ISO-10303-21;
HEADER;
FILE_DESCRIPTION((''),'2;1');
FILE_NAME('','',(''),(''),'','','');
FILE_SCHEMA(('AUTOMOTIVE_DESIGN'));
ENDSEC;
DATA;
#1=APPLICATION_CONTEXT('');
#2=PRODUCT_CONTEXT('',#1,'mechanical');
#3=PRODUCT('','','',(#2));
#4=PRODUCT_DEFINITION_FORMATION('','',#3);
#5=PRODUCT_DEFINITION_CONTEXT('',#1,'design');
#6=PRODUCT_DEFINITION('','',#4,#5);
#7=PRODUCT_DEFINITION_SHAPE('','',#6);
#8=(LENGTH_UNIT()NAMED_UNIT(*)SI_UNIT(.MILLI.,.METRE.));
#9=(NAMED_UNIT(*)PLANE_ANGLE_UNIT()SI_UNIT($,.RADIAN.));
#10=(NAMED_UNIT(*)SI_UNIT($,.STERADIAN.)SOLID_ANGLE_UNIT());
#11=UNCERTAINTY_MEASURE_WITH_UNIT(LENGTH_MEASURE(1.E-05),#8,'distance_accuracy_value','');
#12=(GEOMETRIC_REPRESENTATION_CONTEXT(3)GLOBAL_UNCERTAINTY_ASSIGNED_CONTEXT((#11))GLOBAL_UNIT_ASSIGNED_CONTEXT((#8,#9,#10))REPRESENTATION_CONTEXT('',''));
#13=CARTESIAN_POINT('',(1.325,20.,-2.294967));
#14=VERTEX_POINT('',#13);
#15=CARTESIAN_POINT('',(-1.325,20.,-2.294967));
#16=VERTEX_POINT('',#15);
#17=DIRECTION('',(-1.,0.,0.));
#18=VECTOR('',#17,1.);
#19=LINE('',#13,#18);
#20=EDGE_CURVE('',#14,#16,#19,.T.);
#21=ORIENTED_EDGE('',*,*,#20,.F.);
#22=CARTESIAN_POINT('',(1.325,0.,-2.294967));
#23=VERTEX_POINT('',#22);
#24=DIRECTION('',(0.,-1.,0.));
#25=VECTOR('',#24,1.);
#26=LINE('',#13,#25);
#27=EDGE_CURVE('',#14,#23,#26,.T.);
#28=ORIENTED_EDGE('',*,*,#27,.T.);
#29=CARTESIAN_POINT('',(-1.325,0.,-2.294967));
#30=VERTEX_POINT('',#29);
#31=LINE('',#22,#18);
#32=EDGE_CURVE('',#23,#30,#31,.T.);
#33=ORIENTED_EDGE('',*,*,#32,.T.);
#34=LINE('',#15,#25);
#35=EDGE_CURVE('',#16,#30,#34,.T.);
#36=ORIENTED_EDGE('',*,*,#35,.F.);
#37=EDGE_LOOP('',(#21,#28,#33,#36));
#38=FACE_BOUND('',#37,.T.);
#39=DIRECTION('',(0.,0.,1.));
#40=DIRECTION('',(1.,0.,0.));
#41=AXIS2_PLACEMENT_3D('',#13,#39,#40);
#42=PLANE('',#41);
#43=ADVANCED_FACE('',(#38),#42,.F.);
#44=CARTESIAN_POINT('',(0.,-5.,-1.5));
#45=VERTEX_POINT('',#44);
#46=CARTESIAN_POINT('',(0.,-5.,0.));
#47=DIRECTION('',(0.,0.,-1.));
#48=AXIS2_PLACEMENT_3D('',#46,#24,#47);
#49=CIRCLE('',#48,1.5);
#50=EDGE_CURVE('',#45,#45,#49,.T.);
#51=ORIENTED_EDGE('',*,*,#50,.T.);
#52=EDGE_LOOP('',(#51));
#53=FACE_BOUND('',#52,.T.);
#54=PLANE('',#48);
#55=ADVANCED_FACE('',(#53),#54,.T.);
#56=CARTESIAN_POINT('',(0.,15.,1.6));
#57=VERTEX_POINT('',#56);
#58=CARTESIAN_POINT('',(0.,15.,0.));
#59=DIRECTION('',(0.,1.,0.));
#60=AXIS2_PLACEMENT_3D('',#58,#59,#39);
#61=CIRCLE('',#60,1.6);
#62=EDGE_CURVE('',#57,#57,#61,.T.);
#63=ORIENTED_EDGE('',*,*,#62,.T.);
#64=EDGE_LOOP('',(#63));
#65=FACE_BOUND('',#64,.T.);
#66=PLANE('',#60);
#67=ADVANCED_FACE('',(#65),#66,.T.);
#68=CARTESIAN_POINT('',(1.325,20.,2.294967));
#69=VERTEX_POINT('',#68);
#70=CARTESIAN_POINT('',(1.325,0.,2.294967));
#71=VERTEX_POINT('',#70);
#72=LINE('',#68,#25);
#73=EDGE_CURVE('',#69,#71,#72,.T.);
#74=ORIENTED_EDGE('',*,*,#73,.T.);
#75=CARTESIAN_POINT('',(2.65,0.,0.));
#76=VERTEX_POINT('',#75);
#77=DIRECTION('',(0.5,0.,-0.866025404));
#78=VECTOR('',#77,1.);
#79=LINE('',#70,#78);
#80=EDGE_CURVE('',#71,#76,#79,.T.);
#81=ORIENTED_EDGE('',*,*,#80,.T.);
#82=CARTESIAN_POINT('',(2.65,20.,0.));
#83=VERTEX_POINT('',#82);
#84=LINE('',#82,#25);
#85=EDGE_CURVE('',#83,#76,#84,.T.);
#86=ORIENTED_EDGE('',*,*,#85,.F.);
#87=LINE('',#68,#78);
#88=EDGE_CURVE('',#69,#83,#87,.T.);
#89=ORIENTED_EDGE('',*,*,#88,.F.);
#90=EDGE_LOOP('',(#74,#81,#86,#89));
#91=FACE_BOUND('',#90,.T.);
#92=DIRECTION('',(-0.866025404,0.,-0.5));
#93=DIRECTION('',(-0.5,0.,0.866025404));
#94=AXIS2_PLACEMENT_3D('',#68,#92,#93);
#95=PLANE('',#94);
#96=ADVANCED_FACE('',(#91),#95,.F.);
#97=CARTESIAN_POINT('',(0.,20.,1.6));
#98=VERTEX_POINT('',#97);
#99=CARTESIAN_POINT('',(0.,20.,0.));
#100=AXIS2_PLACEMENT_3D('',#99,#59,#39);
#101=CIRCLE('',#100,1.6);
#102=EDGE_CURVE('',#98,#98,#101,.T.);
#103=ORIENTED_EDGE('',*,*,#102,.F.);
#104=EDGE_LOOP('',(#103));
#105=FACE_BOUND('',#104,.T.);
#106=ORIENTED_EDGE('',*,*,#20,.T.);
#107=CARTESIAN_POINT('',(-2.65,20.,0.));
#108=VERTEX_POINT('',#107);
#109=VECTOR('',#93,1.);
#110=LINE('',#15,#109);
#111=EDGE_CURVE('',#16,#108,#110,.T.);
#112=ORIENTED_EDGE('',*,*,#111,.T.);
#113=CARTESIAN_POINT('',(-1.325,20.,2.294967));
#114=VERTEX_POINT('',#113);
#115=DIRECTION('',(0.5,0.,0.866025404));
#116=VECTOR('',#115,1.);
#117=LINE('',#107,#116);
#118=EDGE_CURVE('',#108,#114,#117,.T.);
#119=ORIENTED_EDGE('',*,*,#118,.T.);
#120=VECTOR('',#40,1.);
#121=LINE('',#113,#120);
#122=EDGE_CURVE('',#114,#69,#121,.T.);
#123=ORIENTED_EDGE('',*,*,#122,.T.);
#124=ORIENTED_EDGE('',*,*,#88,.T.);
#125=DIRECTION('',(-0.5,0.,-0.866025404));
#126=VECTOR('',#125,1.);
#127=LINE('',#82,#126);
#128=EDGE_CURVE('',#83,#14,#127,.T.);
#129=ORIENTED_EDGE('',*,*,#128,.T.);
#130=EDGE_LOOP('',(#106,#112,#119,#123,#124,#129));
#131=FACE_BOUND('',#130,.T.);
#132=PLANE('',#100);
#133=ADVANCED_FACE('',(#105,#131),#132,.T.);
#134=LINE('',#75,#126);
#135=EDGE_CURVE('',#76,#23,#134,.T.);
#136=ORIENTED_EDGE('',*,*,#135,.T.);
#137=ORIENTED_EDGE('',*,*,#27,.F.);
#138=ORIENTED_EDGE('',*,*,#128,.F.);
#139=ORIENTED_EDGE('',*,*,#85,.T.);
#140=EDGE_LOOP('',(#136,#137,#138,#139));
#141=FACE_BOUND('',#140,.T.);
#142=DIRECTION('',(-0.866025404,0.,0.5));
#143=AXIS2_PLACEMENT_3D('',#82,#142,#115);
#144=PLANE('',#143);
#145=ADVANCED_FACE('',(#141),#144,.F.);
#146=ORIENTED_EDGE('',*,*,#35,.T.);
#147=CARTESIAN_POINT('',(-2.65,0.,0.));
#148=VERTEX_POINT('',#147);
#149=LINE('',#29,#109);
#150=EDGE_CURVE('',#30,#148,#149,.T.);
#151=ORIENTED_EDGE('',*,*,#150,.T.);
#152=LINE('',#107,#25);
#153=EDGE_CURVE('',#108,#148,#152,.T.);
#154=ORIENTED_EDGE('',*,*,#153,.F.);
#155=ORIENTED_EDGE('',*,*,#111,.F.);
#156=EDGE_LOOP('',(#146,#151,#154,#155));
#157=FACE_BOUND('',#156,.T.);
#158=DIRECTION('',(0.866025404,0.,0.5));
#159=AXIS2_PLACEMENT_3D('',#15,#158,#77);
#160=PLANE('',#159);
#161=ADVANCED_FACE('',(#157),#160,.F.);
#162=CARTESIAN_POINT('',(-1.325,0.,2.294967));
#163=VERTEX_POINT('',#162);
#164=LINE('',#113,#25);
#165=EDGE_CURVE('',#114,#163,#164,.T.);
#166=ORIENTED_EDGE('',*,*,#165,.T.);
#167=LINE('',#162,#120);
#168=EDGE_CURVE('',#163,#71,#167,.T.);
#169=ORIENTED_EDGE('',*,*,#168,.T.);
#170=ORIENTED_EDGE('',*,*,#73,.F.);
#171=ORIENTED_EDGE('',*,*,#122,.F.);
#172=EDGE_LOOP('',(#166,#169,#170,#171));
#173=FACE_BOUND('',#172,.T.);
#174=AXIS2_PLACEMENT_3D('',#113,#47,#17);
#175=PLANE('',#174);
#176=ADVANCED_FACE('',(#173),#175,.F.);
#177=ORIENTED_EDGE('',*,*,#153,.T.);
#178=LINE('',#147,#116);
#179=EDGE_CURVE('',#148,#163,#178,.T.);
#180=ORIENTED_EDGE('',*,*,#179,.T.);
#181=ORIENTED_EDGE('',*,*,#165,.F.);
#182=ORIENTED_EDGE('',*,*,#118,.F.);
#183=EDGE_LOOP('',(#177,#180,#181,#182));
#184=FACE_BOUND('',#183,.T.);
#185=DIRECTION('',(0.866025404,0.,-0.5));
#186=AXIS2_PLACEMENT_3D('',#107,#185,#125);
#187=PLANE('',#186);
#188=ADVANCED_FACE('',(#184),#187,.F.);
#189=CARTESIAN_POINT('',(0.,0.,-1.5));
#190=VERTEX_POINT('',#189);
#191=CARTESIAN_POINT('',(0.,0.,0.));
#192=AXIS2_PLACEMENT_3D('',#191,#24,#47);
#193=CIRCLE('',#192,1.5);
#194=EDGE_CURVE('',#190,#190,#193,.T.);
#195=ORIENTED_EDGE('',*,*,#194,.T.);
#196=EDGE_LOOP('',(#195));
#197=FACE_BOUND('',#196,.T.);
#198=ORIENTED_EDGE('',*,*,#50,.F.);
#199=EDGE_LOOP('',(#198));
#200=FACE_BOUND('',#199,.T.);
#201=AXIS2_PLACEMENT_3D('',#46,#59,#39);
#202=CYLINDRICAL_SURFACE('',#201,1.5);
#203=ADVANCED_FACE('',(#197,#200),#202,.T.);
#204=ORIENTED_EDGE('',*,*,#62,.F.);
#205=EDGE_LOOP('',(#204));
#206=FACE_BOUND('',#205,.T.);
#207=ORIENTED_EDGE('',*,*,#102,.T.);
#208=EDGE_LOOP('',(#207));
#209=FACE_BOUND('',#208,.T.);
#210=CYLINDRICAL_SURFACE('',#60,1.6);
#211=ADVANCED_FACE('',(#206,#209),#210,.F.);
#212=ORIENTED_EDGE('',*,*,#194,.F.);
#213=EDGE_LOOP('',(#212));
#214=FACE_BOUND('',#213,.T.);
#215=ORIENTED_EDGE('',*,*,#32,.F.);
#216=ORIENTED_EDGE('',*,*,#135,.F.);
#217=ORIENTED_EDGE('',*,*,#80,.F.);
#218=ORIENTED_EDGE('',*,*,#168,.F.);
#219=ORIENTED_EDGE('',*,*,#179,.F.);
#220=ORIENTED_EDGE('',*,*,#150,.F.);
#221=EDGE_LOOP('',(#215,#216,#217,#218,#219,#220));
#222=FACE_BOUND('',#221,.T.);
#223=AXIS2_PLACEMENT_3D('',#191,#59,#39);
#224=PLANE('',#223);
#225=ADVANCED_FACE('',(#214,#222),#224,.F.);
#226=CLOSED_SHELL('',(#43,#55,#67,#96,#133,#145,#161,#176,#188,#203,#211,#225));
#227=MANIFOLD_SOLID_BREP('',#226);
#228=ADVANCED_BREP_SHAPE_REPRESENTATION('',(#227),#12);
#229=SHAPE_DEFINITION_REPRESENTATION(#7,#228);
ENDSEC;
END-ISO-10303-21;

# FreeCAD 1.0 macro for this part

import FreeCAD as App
import Part
import Sketcher
from FreeCAD import Vector
Q = App.Units.Quantity

doc = App.newDocument("Part")
body = doc.addObject("PartDesign::Body", "Body")

# Sketch on XZ plane
sketch1 = body.newObject("Sketcher::SketchObject", "Sketch")
sketch1.AttachmentSupport = (doc.getObject("XZ_Plane"), [""])
sketch1.MapMode = "FlatFace"
sketch1.addGeometry(Part.LineSegment(Vector(2.6, 0, 0), Vector(1.3, -2.3, 0)), False)
sketch1.addGeometry(Part.LineSegment(Vector(1.3, -2.3, 0), Vector(-1.3, -2.3, 0)), False)
sketch1.addGeometry(Part.LineSegment(Vector(-1.3, -2.3, 0), Vector(-2.6, 0, 0)), False)
sketch1.addGeometry(Part.LineSegment(Vector(-2.6, 0, 0), Vector(-1.3, 2.3, 0)), False)
sketch1.addGeometry(Part.LineSegment(Vector(-1.3, 2.3, 0), Vector(1.3, 2.3, 0)), False)
sketch1.addGeometry(Part.LineSegment(Vector(1.3, 2.3, 0), Vector(2.6, 0, 0)), False)
sketch1.addConstraint(Sketcher.Constraint("Coincident", 0, 2, 1, 1))
sketch1.addConstraint(Sketcher.Constraint("Coincident", 1, 2, 2, 1))
sketch1.addConstraint(Sketcher.Constraint("Coincident", 2, 2, 3, 1))
sketch1.addConstraint(Sketcher.Constraint("Coincident", 3, 2, 4, 1))
sketch1.addConstraint(Sketcher.Constraint("Coincident", 4, 2, 5, 1))
sketch1.addConstraint(Sketcher.Constraint("Coincident", 5, 2, 0, 1))
sketch1.addConstraint(Sketcher.Constraint("Horizontal", 1))
sketch1.addConstraint(Sketcher.Constraint("Horizontal", 4))
sketch1.addConstraint(Sketcher.Constraint("Symmetric", 0, 2, 3, 2, -1, 1))
sketch1.addConstraint(Sketcher.Constraint("Symmetric", 2, 2, 5, 2, -1, 1))
sketch1.addConstraint(Sketcher.Constraint("PointOnObject", 2, 2, -1))
sketch1.addConstraint(Sketcher.Constraint("Parallel", 2, 5))
sketch1.addConstraint(Sketcher.Constraint("Vertical", 1, 2, 3, 2))
sketch1.addConstraint(Sketcher.Constraint("Angle", 0, Q("-120 deg")))
sketch1.addConstraint(Sketcher.Constraint("DistanceX", 1, 2, 1, 1, Q("2.65 mm")))
sketch1.addConstraint(Sketcher.Constraint("DistanceX", 2, 2, 5, 2, Q("5.3 mm")))
pad1 = body.newObject("PartDesign::Pad", "Pad")
pad1.Profile = sketch1
pad1.Length = 20
pad1.Reversed = True

# Sketch on XZ plane
sketch2 = body.newObject("Sketcher::SketchObject", "Sketch001")
sketch2.AttachmentSupport = (doc.getObject("XZ_Plane"), [""])
sketch2.MapMode = "FlatFace"
sketch2.AttachmentOffset = App.Placement(Vector(0, 0, -20), App.Rotation())
sketch2.addGeometry(Part.Circle(Vector(0, 0, 0), Vector(0, 0, 1), 1.6), False)
sketch2.addConstraint(Sketcher.Constraint("Coincident", 0, 3, -1, 1))
sketch2.addConstraint(Sketcher.Constraint("Diameter", 0, Q("3.2 mm")))
pocket1 = body.newObject("PartDesign::Pocket", "Pocket")
pocket1.Profile = sketch2
pocket1.Length = 5
pocket1.Reversed = True

# Sketch on XZ plane
sketch3 = body.newObject("Sketcher::SketchObject", "Sketch002")
sketch3.AttachmentSupport = (doc.getObject("XZ_Plane"), [""])
sketch3.MapMode = "FlatFace"
sketch3.addGeometry(Part.Circle(Vector(0, 0, 0), Vector(0, 0, 1), 1.5), False)
sketch3.addConstraint(Sketcher.Constraint("Coincident", 0, 3, -1, 1))
sketch3.addConstraint(Sketcher.Constraint("Diameter", 0, Q("3 mm")))
pad2 = body.newObject("PartDesign::Pad", "Pad001")
pad2.Profile = sketch3
pad2.Length = 5

doc.recompute()
